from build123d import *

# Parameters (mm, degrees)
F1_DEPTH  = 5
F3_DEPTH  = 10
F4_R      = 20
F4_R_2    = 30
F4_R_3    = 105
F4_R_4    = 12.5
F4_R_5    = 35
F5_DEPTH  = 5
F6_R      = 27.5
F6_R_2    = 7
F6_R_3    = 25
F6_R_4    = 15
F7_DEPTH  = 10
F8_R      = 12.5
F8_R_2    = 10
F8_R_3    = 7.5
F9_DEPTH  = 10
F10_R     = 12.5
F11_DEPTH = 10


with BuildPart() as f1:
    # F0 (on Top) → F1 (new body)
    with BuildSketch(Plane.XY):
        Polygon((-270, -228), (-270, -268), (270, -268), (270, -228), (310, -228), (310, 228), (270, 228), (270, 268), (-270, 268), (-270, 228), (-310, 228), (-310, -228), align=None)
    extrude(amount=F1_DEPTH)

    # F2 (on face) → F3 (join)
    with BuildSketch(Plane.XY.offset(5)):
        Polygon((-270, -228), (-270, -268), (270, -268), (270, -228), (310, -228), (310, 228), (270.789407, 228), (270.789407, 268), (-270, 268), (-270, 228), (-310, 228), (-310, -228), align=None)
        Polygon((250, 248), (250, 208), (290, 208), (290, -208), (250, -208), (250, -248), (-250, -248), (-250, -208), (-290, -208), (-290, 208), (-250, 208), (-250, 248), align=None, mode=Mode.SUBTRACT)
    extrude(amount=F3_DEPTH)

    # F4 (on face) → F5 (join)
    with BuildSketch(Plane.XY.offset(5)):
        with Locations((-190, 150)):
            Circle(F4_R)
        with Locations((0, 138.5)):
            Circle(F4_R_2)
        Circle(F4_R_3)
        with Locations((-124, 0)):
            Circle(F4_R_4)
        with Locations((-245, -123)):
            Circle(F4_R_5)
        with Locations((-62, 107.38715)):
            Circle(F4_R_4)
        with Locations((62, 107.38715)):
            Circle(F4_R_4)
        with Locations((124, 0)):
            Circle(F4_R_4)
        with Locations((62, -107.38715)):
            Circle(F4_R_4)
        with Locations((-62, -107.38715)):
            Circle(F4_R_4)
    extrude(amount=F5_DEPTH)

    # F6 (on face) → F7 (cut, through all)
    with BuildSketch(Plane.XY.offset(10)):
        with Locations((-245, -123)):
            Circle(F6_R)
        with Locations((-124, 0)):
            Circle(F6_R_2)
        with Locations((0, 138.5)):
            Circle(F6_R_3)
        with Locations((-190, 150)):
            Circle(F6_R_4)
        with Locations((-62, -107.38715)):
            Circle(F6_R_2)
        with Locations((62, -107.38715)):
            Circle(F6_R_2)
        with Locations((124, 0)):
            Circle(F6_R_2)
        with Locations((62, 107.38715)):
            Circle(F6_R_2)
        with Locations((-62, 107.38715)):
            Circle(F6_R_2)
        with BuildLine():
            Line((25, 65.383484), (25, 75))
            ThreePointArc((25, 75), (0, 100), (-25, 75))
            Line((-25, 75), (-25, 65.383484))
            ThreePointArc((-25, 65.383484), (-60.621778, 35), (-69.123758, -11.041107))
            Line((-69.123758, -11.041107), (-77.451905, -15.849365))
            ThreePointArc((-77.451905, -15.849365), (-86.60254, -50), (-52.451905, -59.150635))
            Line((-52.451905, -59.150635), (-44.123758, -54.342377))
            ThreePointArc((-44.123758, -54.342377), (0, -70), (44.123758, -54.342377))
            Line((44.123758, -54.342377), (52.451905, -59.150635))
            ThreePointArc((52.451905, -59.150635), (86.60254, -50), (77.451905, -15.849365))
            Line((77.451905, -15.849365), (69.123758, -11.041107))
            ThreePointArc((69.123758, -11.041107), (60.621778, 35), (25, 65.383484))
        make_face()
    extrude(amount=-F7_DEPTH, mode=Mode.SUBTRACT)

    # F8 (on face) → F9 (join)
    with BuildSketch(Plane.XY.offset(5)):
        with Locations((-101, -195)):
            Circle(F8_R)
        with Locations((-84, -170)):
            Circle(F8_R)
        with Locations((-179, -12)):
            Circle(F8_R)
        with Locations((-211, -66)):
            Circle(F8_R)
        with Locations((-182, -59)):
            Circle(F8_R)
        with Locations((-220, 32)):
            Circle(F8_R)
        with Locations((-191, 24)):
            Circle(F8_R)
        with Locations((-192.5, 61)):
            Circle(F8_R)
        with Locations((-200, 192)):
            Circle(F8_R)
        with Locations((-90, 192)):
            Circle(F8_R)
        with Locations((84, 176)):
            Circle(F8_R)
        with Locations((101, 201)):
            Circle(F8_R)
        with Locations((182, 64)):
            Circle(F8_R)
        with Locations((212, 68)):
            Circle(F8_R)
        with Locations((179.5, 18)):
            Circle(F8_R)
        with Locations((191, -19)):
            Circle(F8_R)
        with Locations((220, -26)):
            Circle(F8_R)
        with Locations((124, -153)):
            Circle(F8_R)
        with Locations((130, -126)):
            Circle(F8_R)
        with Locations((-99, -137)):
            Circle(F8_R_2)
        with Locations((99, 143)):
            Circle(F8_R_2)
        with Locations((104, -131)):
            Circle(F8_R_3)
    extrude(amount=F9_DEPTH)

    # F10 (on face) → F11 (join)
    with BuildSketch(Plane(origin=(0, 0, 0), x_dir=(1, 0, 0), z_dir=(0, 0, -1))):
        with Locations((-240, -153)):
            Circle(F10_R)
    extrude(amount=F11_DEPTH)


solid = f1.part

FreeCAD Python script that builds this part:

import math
import FreeCAD as App
import Part
import Sketcher
Q = App.Units.Quantity


def add_polygon(sketch, points):
    """Adds a closed chain of lines whose ends are joined by coincident constraints."""
    first, n = sketch.GeometryCount, len(points)
    for a, b in zip(points, points[1:] + points[:1]):
        sketch.addGeometry(Part.LineSegment(App.Vector(*a, 0), App.Vector(*b, 0)), False)
    for i in range(n):
        sketch.addConstraint(Sketcher.Constraint("Coincident", first + i, 2, first + (i + 1) % n, 1))

doc = App.newDocument("Part")
body = doc.addObject("PartDesign::Body", "Body")

sketch1 = doc.addObject("Sketcher::SketchObject", "Sketch")
body.addObject(sketch1)
sketch1.AttachmentSupport = (doc.XY_Plane, [""])
sketch1.MapMode = "FlatFace"
add_polygon(sketch1, [(-270, -228), (-270, -268), (270, -268), (270, -228), (310, -228), (310, 228), (270, 228), (270, 268), (-270, 268), (-270, 228), (-310, 228), (-310, -228)])
sketch1.addConstraint([
    Sketcher.Constraint("Vertical", 0),
    Sketcher.Constraint("Horizontal", 1),
    Sketcher.Constraint("Vertical", 2),
    Sketcher.Constraint("Horizontal", 3),
    Sketcher.Constraint("Vertical", 4),
    Sketcher.Constraint("Horizontal", 5),
    Sketcher.Constraint("Vertical", 6),
    Sketcher.Constraint("Horizontal", 7),
    Sketcher.Constraint("Vertical", 8),
    Sketcher.Constraint("Horizontal", 9),
    Sketcher.Constraint("Vertical", 10),
    Sketcher.Constraint("Horizontal", 11),
    Sketcher.Constraint("Symmetric", 0, 2, 6, 2, -1, 1),
    Sketcher.Constraint("Symmetric", 2, 2, 8, 2, -1, 1),
    Sketcher.Constraint("Symmetric", 4, 2, 10, 2, -1, 1),
    Sketcher.Constraint("Symmetric", 5, 2, 8, 2, -2),
    Sketcher.Constraint("Equal", 11, 0),
    Sketcher.Constraint("DistanceX", 1, 1, 1, 2, 540.0),
    Sketcher.Constraint("DistanceX", 3, 1, 3, 2, 40.0),
    Sketcher.Constraint("DistanceY", 4, 1, 4, 2, 456.0),
])
pad1 = doc.addObject("PartDesign::Pad", "Pad")
body.addObject(pad1)
pad1.Profile = sketch1
pad1.Length = 5

sketch2 = doc.addObject("Sketcher::SketchObject", "Sketch001")
body.addObject(sketch2)
sketch2.AttachmentSupport = (doc.XY_Plane, [""])
sketch2.MapMode = "FlatFace"
sketch2.AttachmentOffset = App.Placement(App.Vector(0, 0, 5), App.Rotation())
add_polygon(sketch2, [(-270, -228), (-270, -268), (270, -268), (270, -228), (310, -228), (310, 228), (270.789407, 228), (270.789407, 268), (-270, 268), (-270, 228), (-310, 228), (-310, -228)])
add_polygon(sketch2, [(-250, 248), (250, 248), (250, 208), (290, 208), (290, -208), (250, -208), (250, -248), (-250, -248), (-250, -208), (-290, -208), (-290, 208), (-250, 208)])
sketch2.addConstraint([
    Sketcher.Constraint("Vertical", 0),
    Sketcher.Constraint("Horizontal", 1),
    Sketcher.Constraint("Vertical", 2),
    Sketcher.Constraint("Horizontal", 3),
    Sketcher.Constraint("Vertical", 4),
    Sketcher.Constraint("Horizontal", 5),
    Sketcher.Constraint("Vertical", 6),
    Sketcher.Constraint("Horizontal", 7),
    Sketcher.Constraint("Vertical", 8),
    Sketcher.Constraint("Horizontal", 9),
    Sketcher.Constraint("Vertical", 10),
    Sketcher.Constraint("Horizontal", 11),
    Sketcher.Constraint("Horizontal", 12),
    Sketcher.Constraint("Vertical", 13),
    Sketcher.Constraint("Horizontal", 14),
    Sketcher.Constraint("Vertical", 15),
    Sketcher.Constraint("Horizontal", 16),
    Sketcher.Constraint("Vertical", 17),
    Sketcher.Constraint("Horizontal", 18),
    Sketcher.Constraint("Vertical", 19),
    Sketcher.Constraint("Horizontal", 20),
    Sketcher.Constraint("Vertical", 21),
    Sketcher.Constraint("Horizontal", 22),
    Sketcher.Constraint("Vertical", 23),
    Sketcher.Constraint("Symmetric", 1, 2, 7, 2, -1, 1),
    Sketcher.Constraint("Symmetric", 3, 2, 9, 2, -1, 1),
    Sketcher.Constraint("Symmetric", 12, 2, 18, 2, -1, 1),
    Sketcher.Constraint("Symmetric", 14, 2, 20, 2, -1, 1),
    Sketcher.Constraint("Symmetric", 16, 2, 22, 2, -1, 1),
    Sketcher.Constraint("Symmetric", 2, 2, 11, 2, -2),
    Sketcher.Constraint("Symmetric", 16, 2, 19, 2, -2),
    Sketcher.Constraint("Horizontal", 5, 2, 8, 2),
    Sketcher.Constraint("Equal", 11, 14),
    Sketcher.Constraint("Equal", 22, 0),
    Sketcher.Constraint("Equal", 8, 13),
    Sketcher.Constraint("DistanceX", 1, 1, 1, 2, 540.0),
    Sketcher.Constraint("DistanceX", 3, 1, 3, 2, 40.0),
    Sketcher.Constraint("DistanceX", 12, 1, 12, 2, 500.0),
    Sketcher.Constraint("DistanceY", 4, 1, 4, 2, 456.0),
    Sketcher.Constraint("DistanceY", 15, 2, 15, 1, 416.0),
    Sketcher.Constraint("DistanceX", 5, 2, 5, 1, 39.210593),
])
pad2 = doc.addObject("PartDesign::Pad", "Pad001")
body.addObject(pad2)
pad2.Profile = sketch2
pad2.Length = 10

sketch3 = doc.addObject("Sketcher::SketchObject", "Sketch002")
body.addObject(sketch3)
sketch3.AttachmentSupport = (doc.XY_Plane, [""])
sketch3.MapMode = "FlatFace"
sketch3.AttachmentOffset = App.Placement(App.Vector(0, 0, 5), App.Rotation())
sketch3.addGeometry([
    Part.Circle(App.Vector(-190, 150, 0), App.Vector(0, 0, 1), 20),
    Part.Circle(App.Vector(0, 138.5, 0), App.Vector(0, 0, 1), 30),
    Part.Circle(App.Vector(0, 0, 0), App.Vector(0, 0, 1), 105),
    Part.Circle(App.Vector(-124, 0, 0), App.Vector(0, 0, 1), 12.5),
    Part.Circle(App.Vector(-245, -123, 0), App.Vector(0, 0, 1), 35),
    Part.Circle(App.Vector(-62, 107.38715, 0), App.Vector(0, 0, 1), 12.5),
    Part.Circle(App.Vector(62, 107.38715, 0), App.Vector(0, 0, 1), 12.5),
    Part.Circle(App.Vector(124, 0, 0), App.Vector(0, 0, 1), 12.5),
    Part.Circle(App.Vector(62, -107.38715, 0), App.Vector(0, 0, 1), 12.5),
    Part.Circle(App.Vector(-62, -107.38715, 0), App.Vector(0, 0, 1), 12.5),
], False)
sketch3.addConstraint([
    Sketcher.Constraint("Coincident", 2, 3, -1, 1),
    Sketcher.Constraint("Equal", 3, 5),
    Sketcher.Constraint("Equal", 5, 6),
    Sketcher.Constraint("Equal", 6, 7),
    Sketcher.Constraint("Equal", 7, 8),
    Sketcher.Constraint("Equal", 8, 9),
    Sketcher.Constraint("Symmetric", 3, 3, 7, 3, -1, 1),
    Sketcher.Constraint("Symmetric", 5, 3, 8, 3, -1, 1),
    Sketcher.Constraint("Symmetric", 6, 3, 9, 3, -1, 1),
    Sketcher.Constraint("Symmetric", 5, 3, 6, 3, -2),
    Sketcher.Constraint("PointOnObject", 1, 3, -2),
    Sketcher.Constraint("PointOnObject", 3, 3, -1),
    Sketcher.Constraint("Diameter", 0, 40.0),
    Sketcher.Constraint("Diameter", 1, 60.0),
    Sketcher.Constraint("Diameter", 2, 210.0),
    Sketcher.Constraint("Diameter", 3, 25.0),
    Sketcher.Constraint("Diameter", 4, 70.0),
    Sketcher.Constraint("DistanceX", 0, 3, -1, 1, 190.0),
    Sketcher.Constraint("DistanceY", -1, 1, 0, 3, 150.0),
    Sketcher.Constraint("DistanceX", 3, 3, -1, 1, 124.0),
    Sketcher.Constraint("DistanceX", 4, 3, -1, 1, 245.0),
    Sketcher.Constraint("DistanceY", 4, 3, -1, 1, 123.0),
    Sketcher.Constraint("DistanceX", 5, 3, -1, 1, 62.0),
    Sketcher.Constraint("DistanceY", -1, 1, 1, 3, 138.5),
    Sketcher.Constraint("DistanceY", 8, 3, 6, 3, 214.7743),
])
pad3 = doc.addObject("PartDesign::Pad", "Pad002")
body.addObject(pad3)
pad3.Profile = sketch3
pad3.Length = 5

sketch4 = doc.addObject("Sketcher::SketchObject", "Sketch003")
body.addObject(sketch4)
sketch4.AttachmentSupport = (doc.XY_Plane, [""])
sketch4.MapMode = "FlatFace"
sketch4.AttachmentOffset = App.Placement(App.Vector(0, 0, 10), App.Rotation())
sketch4.addGeometry([
    Part.Circle(App.Vector(-245, -123, 0), App.Vector(0, 0, 1), 27.5),
    Part.Circle(App.Vector(-124, 0, 0), App.Vector(0, 0, 1), 7),
    Part.Circle(App.Vector(0, 138.5, 0), App.Vector(0, 0, 1), 25),
    Part.Circle(App.Vector(-190, 150, 0), App.Vector(0, 0, 1), 15),
    Part.Circle(App.Vector(-62, -107.38715, 0), App.Vector(0, 0, 1), 7),
    Part.Circle(App.Vector(62, -107.38715, 0), App.Vector(0, 0, 1), 7),
    Part.Circle(App.Vector(124, 0, 0), App.Vector(0, 0, 1), 7),
    Part.Circle(App.Vector(62, 107.38715, 0), App.Vector(0, 0, 1), 7),
    Part.Circle(App.Vector(-62, 107.38715, 0), App.Vector(0, 0, 1), 7),
    Part.LineSegment(App.Vector(25, 65.383484, 0), App.Vector(25, 75, 0)),
    Part.ArcOfCircle(Part.Circle(App.Vector(0, 75, 0), App.Vector(0, 0, 1), 25), math.radians(0), math.radians(180)),
    Part.LineSegment(App.Vector(-25, 75, 0), App.Vector(-25, 65.383484, 0)),
    Part.ArcOfCircle(Part.Circle(App.Vector(0, 0, 0), App.Vector(0, 0, 1), 70), math.radians(110.924833), math.radians(189.075168)),
    Part.LineSegment(App.Vector(-69.123758, -11.041107, 0), App.Vector(-77.451905, -15.849365, 0)),
    Part.ArcOfCircle(Part.Circle(App.Vector(-64.951905, -37.5, 0), App.Vector(0, 0, 1), 25), math.radians(120), math.radians(300)),
    Part.LineSegment(App.Vector(-52.451905, -59.150635, 0), App.Vector(-44.123758, -54.342377, 0)),
    Part.ArcOfCircle(Part.Circle(App.Vector(0, -0.000001, 0), App.Vector(0, 0, 1), 69.999999), math.radians(-129.075168), math.radians(-50.924832)),
    Part.LineSegment(App.Vector(44.123758, -54.342377, 0), App.Vector(52.451905, -59.150635, 0)),
    Part.ArcOfCircle(Part.Circle(App.Vector(64.951905, -37.5, 0), App.Vector(0, 0, 1), 25), math.radians(-120), math.radians(60)),
    Part.LineSegment(App.Vector(77.451905, -15.849365, 0), App.Vector(69.123758, -11.041107, 0)),
    Part.ArcOfCircle(Part.Circle(App.Vector(0, 0, 0), App.Vector(0, 0, 1), 70), math.radians(-9.075168), math.radians(69.075167)),
], False)
sketch4.addConstraint([
    Sketcher.Constraint("Tangent", 9, 2, 10, 1),
    Sketcher.Constraint("Tangent", 10, 2, 11, 1),
    Sketcher.Constraint("Coincident", 11, 2, 12, 1),
    Sketcher.Constraint("Coincident", 12, 2, 13, 1),
    Sketcher.Constraint("Tangent", 13, 2, 14, 1),
    Sketcher.Constraint("Tangent", 14, 2, 15, 1),
    Sketcher.Constraint("Coincident", 15, 2, 16, 1),
    Sketcher.Constraint("Coincident", 16, 2, 17, 1),
    Sketcher.Constraint("Tangent", 17, 2, 18, 1),
    Sketcher.Constraint("Tangent", 18, 2, 19, 1),
    Sketcher.Constraint("Coincident", 19, 2, 20, 1),
    Sketcher.Constraint("Coincident", 20, 2, 9, 1),
    Sketcher.Constraint("Vertical", 9),
    Sketcher.Constraint("Vertical", 11),
    Sketcher.Constraint("Coincident", 12, 3, -1, 1),
    Sketcher.Constraint("Coincident", 16, 3, -1, 1),
    Sketcher.Constraint("Coincident", 20, 3, -1, 1),
    Sketcher.Constraint("Equal", 1, 4),
    Sketcher.Constraint("Equal", 4, 5),
    Sketcher.Constraint("Equal", 5, 6),
    Sketcher.Constraint("Equal", 6, 7),
    Sketcher.Constraint("Equal", 7, 8),
    Sketcher.Constraint("Equal", 2, 10),
    Sketcher.Constraint("Equal", 10, 14),
    Sketcher.Constraint("Equal", 12, 16),
    Sketcher.Constraint("Equal", 14, 18),
    Sketcher.Constraint("Equal", 16, 20),
    Sketcher.Constraint("Symmetric", 1, 3, 6, 3, -1, 1),
    Sketcher.Constraint("Symmetric", 4, 3, 7, 3, -1, 1),
    Sketcher.Constraint("Symmetric", 5, 3, 8, 3, -1, 1),
    Sketcher.Constraint("Symmetric", 4, 3, 5, 3, -2),
    Sketcher.Constraint("Symmetric", 14, 3, 18, 3, -2),
    Sketcher.Constraint("PointOnObject", 1, 3, -1),
    Sketcher.Constraint("PointOnObject", 2, 3, -2),
    Sketcher.Constraint("PointOnObject", 10, 3, -2),
    Sketcher.Constraint("Parallel", 13, 15),
    Sketcher.Constraint("Parallel", 17, 19),
    Sketcher.Constraint("Horizontal", 15, 2, 16, 2),
    Sketcher.Constraint("Equal", 13, 15),
    Sketcher.Constraint("Diameter", 0, 55.0),
    Sketcher.Constraint("Diameter", 1, 14.0),
    Sketcher.Constraint("Diameter", 2, 50.0),
    Sketcher.Constraint("Diameter", 3, 30.0),
    Sketcher.Constraint("Radius", 12, 70.0),
    Sketcher.Constraint("Angle", 13, Q("-150 deg")),
    Sketcher.Constraint("DistanceX", 0, 3, -1, 1, 245.0),
    Sketcher.Constraint("DistanceY", 0, 3, -1, 1, 123.0),
    Sketcher.Constraint("DistanceX", 1, 3, -1, 1, 124.0),
    Sketcher.Constraint("DistanceX", 3, 3, -1, 1, 190.0),
    Sketcher.Constraint("DistanceY", -1, 1, 3, 3, 150.0),
    Sketcher.Constraint("DistanceX", 4, 3, -1, 1, 62.0),
    Sketcher.Constraint("DistanceY", -1, 1, 10, 3, 75.0),
    Sketcher.Constraint("DistanceY", -1, 1, 2, 3, 138.5),
    Sketcher.Constraint("DistanceY", 14, 3, -1, 1, 37.5),
    Sketcher.Constraint("DistanceY", 5, 3, 7, 3, 214.7743),
])
pocket1 = doc.addObject("PartDesign::Pocket", "Pocket")
body.addObject(pocket1)
pocket1.Profile = sketch4
pocket1.Type = "ThroughAll"

sketch5 = doc.addObject("Sketcher::SketchObject", "Sketch004")
body.addObject(sketch5)
sketch5.AttachmentSupport = (doc.XY_Plane, [""])
sketch5.MapMode = "FlatFace"
sketch5.AttachmentOffset = App.Placement(App.Vector(0, 0, 5), App.Rotation())
sketch5.addGeometry([
    Part.Circle(App.Vector(-101, -195, 0), App.Vector(0, 0, 1), 12.5),
    Part.Circle(App.Vector(-84, -170, 0), App.Vector(0, 0, 1), 12.5),
    Part.Circle(App.Vector(-179, -12, 0), App.Vector(0, 0, 1), 12.5),
    Part.Circle(App.Vector(-211, -66, 0), App.Vector(0, 0, 1), 12.5),
    Part.Circle(App.Vector(-182, -59, 0), App.Vector(0, 0, 1), 12.5),
    Part.Circle(App.Vector(-220, 32, 0), App.Vector(0, 0, 1), 12.5),
    Part.Circle(App.Vector(-191, 24, 0), App.Vector(0, 0, 1), 12.5),
    Part.Circle(App.Vector(-192.5, 61, 0), App.Vector(0, 0, 1), 12.5),
    Part.Circle(App.Vector(-200, 192, 0), App.Vector(0, 0, 1), 12.5),
    Part.Circle(App.Vector(-90, 192, 0), App.Vector(0, 0, 1), 12.5),
    Part.Circle(App.Vector(84, 176, 0), App.Vector(0, 0, 1), 12.5),
    Part.Circle(App.Vector(101, 201, 0), App.Vector(0, 0, 1), 12.5),
    Part.Circle(App.Vector(182, 64, 0), App.Vector(0, 0, 1), 12.5),
    Part.Circle(App.Vector(212, 68, 0), App.Vector(0, 0, 1), 12.5),
    Part.Circle(App.Vector(179.5, 18, 0), App.Vector(0, 0, 1), 12.5),
    Part.Circle(App.Vector(191, -19, 0), App.Vector(0, 0, 1), 12.5),
    Part.Circle(App.Vector(220, -26, 0), App.Vector(0, 0, 1), 12.5),
    Part.Circle(App.Vector(124, -153, 0), App.Vector(0, 0, 1), 12.5),
    Part.Circle(App.Vector(130, -126, 0), App.Vector(0, 0, 1), 12.5),
    Part.Circle(App.Vector(-99, -137, 0), App.Vector(0, 0, 1), 10),
    Part.Circle(App.Vector(99, 143, 0), App.Vector(0, 0, 1), 10),
    Part.Circle(App.Vector(104, -131, 0), App.Vector(0, 0, 1), 7.5),
], False)
sketch5.addConstraint([
    Sketcher.Constraint("Equal", 0, 1),
    Sketcher.Constraint("Equal", 1, 2),
    Sketcher.Constraint("Equal", 2, 3),
    Sketcher.Constraint("Equal", 3, 4),
    Sketcher.Constraint("Equal", 4, 5),
    Sketcher.Constraint("Equal", 5, 6),
    Sketcher.Constraint("Equal", 6, 7),
    Sketcher.Constraint("Equal", 7, 8),
    Sketcher.Constraint("Equal", 8, 9),
    Sketcher.Constraint("Equal", 9, 10),
    Sketcher.Constraint("Equal", 10, 11),
    Sketcher.Constraint("Equal", 11, 12),
    Sketcher.Constraint("Equal", 12, 13),
    Sketcher.Constraint("Equal", 13, 14),
    Sketcher.Constraint("Equal", 14, 15),
    Sketcher.Constraint("Equal", 15, 16),
    Sketcher.Constraint("Equal", 16, 17),
    Sketcher.Constraint("Equal", 17, 18),
    Sketcher.Constraint("Equal", 19, 20),
    Sketcher.Constraint("Horizontal", 8, 3, 9, 3),
    Sketcher.Constraint("Diameter", 0, 25.0),
    Sketcher.Constraint("Diameter", 19, 20.0),
    Sketcher.Constraint("Diameter", 21, 15.0),
    Sketcher.Constraint("DistanceX", 0, 3, -1, 1, 101.0),
    Sketcher.Constraint("DistanceY", 0, 3, -1, 1, 195.0),
    Sketcher.Constraint("DistanceX", 1, 3, -1, 1, 84.0),
    Sketcher.Constraint("DistanceY", 1, 3, -1, 1, 170.0),
    Sketcher.Constraint("DistanceX", 2, 3, -1, 1, 179.0),
    Sketcher.Constraint("DistanceY", 2, 3, -1, 1, 12.0),
    Sketcher.Constraint("DistanceX", 3, 3, -1, 1, 211.0),
    Sketcher.Constraint("DistanceY", 3, 3, -1, 1, 66.0),
    Sketcher.Constraint("DistanceX", 4, 3, -1, 1, 182.0),
    Sketcher.Constraint("DistanceY", 4, 3, -1, 1, 59.0),
    Sketcher.Constraint("DistanceX", 5, 3, -1, 1, 220.0),
    Sketcher.Constraint("DistanceY", -1, 1, 5, 3, 32.0),
    Sketcher.Constraint("DistanceX", 6, 3, -1, 1, 191.0),
    Sketcher.Constraint("DistanceY", -1, 1, 6, 3, 24.0),
    Sketcher.Constraint("DistanceY", -1, 1, 7, 3, 61.0),
    Sketcher.Constraint("DistanceX", 8, 3, -1, 1, 200.0),
    Sketcher.Constraint("DistanceY", -1, 1, 8, 3, 192.0),
    Sketcher.Constraint("DistanceX", 9, 3, -1, 1, 90.0),
    Sketcher.Constraint("DistanceX", -1, 1, 10, 3, 84.0),
    Sketcher.Constraint("DistanceY", -1, 1, 10, 3, 176.0),
    Sketcher.Constraint("DistanceX", -1, 1, 11, 3, 101.0),
    Sketcher.Constraint("DistanceY", -1, 1, 11, 3, 201.0),
    Sketcher.Constraint("DistanceX", -1, 1, 12, 3, 182.0),
    Sketcher.Constraint("DistanceY", -1, 1, 12, 3, 64.0),
    Sketcher.Constraint("DistanceX", -1, 1, 13, 3, 212.0),
    Sketcher.Constraint("DistanceY", -1, 1, 13, 3, 68.0),
    Sketcher.Constraint("DistanceY", -1, 1, 14, 3, 18.0),
    Sketcher.Constraint("DistanceX", -1, 1, 15, 3, 191.0),
    Sketcher.Constraint("DistanceY", 15, 3, -1, 1, 19.0),
    Sketcher.Constraint("DistanceX", -1, 1, 16, 3, 220.0),
    Sketcher.Constraint("DistanceY", 16, 3, -1, 1, 26.0),
    Sketcher.Constraint("DistanceX", -1, 1, 17, 3, 124.0),
    Sketcher.Constraint("DistanceY", 17, 3, -1, 1, 153.0),
    Sketcher.Constraint("DistanceX", -1, 1, 18, 3, 130.0),
    Sketcher.Constraint("DistanceY", 18, 3, -1, 1, 126.0),
    Sketcher.Constraint("DistanceX", 19, 3, -1, 1, 99.0),
    Sketcher.Constraint("DistanceY", 19, 3, -1, 1, 137.0),
    Sketcher.Constraint("DistanceX", -1, 1, 20, 3, 99.0),
    Sketcher.Constraint("DistanceY", -1, 1, 20, 3, 143.0),
    Sketcher.Constraint("DistanceX", -1, 1, 21, 3, 104.0),
    Sketcher.Constraint("DistanceY", 21, 3, -1, 1, 131.0),
    Sketcher.Constraint("DistanceX", 7, 3, -1, 1, 192.5),
    Sketcher.Constraint("DistanceX", -1, 1, 14, 3, 179.5),
])
pad4 = doc.addObject("PartDesign::Pad", "Pad003")
body.addObject(pad4)
pad4.Profile = sketch5
pad4.Length = 10

sketch6 = doc.addObject("Sketcher::SketchObject", "Sketch005")
body.addObject(sketch6)
sketch6.AttachmentSupport = (doc.XY_Plane, [""])
sketch6.MapMode = "FlatFace"
sketch6.addGeometry(Part.Circle(App.Vector(-240, 153, 0), App.Vector(0, 0, 1), 12.5), False)
sketch6.addConstraint([
    Sketcher.Constraint("Diameter", 0, 25.0),
    Sketcher.Constraint("DistanceX", 0, 3, -1, 1, 240.0),
    Sketcher.Constraint("DistanceY", -1, 1, 0, 3, 153.0),
])
pad5 = doc.addObject("PartDesign::Pad", "Pad004")
body.addObject(pad5)
pad5.Profile = sketch6
pad5.Length = 10
pad5.Reversed = True

doc.recompute()
